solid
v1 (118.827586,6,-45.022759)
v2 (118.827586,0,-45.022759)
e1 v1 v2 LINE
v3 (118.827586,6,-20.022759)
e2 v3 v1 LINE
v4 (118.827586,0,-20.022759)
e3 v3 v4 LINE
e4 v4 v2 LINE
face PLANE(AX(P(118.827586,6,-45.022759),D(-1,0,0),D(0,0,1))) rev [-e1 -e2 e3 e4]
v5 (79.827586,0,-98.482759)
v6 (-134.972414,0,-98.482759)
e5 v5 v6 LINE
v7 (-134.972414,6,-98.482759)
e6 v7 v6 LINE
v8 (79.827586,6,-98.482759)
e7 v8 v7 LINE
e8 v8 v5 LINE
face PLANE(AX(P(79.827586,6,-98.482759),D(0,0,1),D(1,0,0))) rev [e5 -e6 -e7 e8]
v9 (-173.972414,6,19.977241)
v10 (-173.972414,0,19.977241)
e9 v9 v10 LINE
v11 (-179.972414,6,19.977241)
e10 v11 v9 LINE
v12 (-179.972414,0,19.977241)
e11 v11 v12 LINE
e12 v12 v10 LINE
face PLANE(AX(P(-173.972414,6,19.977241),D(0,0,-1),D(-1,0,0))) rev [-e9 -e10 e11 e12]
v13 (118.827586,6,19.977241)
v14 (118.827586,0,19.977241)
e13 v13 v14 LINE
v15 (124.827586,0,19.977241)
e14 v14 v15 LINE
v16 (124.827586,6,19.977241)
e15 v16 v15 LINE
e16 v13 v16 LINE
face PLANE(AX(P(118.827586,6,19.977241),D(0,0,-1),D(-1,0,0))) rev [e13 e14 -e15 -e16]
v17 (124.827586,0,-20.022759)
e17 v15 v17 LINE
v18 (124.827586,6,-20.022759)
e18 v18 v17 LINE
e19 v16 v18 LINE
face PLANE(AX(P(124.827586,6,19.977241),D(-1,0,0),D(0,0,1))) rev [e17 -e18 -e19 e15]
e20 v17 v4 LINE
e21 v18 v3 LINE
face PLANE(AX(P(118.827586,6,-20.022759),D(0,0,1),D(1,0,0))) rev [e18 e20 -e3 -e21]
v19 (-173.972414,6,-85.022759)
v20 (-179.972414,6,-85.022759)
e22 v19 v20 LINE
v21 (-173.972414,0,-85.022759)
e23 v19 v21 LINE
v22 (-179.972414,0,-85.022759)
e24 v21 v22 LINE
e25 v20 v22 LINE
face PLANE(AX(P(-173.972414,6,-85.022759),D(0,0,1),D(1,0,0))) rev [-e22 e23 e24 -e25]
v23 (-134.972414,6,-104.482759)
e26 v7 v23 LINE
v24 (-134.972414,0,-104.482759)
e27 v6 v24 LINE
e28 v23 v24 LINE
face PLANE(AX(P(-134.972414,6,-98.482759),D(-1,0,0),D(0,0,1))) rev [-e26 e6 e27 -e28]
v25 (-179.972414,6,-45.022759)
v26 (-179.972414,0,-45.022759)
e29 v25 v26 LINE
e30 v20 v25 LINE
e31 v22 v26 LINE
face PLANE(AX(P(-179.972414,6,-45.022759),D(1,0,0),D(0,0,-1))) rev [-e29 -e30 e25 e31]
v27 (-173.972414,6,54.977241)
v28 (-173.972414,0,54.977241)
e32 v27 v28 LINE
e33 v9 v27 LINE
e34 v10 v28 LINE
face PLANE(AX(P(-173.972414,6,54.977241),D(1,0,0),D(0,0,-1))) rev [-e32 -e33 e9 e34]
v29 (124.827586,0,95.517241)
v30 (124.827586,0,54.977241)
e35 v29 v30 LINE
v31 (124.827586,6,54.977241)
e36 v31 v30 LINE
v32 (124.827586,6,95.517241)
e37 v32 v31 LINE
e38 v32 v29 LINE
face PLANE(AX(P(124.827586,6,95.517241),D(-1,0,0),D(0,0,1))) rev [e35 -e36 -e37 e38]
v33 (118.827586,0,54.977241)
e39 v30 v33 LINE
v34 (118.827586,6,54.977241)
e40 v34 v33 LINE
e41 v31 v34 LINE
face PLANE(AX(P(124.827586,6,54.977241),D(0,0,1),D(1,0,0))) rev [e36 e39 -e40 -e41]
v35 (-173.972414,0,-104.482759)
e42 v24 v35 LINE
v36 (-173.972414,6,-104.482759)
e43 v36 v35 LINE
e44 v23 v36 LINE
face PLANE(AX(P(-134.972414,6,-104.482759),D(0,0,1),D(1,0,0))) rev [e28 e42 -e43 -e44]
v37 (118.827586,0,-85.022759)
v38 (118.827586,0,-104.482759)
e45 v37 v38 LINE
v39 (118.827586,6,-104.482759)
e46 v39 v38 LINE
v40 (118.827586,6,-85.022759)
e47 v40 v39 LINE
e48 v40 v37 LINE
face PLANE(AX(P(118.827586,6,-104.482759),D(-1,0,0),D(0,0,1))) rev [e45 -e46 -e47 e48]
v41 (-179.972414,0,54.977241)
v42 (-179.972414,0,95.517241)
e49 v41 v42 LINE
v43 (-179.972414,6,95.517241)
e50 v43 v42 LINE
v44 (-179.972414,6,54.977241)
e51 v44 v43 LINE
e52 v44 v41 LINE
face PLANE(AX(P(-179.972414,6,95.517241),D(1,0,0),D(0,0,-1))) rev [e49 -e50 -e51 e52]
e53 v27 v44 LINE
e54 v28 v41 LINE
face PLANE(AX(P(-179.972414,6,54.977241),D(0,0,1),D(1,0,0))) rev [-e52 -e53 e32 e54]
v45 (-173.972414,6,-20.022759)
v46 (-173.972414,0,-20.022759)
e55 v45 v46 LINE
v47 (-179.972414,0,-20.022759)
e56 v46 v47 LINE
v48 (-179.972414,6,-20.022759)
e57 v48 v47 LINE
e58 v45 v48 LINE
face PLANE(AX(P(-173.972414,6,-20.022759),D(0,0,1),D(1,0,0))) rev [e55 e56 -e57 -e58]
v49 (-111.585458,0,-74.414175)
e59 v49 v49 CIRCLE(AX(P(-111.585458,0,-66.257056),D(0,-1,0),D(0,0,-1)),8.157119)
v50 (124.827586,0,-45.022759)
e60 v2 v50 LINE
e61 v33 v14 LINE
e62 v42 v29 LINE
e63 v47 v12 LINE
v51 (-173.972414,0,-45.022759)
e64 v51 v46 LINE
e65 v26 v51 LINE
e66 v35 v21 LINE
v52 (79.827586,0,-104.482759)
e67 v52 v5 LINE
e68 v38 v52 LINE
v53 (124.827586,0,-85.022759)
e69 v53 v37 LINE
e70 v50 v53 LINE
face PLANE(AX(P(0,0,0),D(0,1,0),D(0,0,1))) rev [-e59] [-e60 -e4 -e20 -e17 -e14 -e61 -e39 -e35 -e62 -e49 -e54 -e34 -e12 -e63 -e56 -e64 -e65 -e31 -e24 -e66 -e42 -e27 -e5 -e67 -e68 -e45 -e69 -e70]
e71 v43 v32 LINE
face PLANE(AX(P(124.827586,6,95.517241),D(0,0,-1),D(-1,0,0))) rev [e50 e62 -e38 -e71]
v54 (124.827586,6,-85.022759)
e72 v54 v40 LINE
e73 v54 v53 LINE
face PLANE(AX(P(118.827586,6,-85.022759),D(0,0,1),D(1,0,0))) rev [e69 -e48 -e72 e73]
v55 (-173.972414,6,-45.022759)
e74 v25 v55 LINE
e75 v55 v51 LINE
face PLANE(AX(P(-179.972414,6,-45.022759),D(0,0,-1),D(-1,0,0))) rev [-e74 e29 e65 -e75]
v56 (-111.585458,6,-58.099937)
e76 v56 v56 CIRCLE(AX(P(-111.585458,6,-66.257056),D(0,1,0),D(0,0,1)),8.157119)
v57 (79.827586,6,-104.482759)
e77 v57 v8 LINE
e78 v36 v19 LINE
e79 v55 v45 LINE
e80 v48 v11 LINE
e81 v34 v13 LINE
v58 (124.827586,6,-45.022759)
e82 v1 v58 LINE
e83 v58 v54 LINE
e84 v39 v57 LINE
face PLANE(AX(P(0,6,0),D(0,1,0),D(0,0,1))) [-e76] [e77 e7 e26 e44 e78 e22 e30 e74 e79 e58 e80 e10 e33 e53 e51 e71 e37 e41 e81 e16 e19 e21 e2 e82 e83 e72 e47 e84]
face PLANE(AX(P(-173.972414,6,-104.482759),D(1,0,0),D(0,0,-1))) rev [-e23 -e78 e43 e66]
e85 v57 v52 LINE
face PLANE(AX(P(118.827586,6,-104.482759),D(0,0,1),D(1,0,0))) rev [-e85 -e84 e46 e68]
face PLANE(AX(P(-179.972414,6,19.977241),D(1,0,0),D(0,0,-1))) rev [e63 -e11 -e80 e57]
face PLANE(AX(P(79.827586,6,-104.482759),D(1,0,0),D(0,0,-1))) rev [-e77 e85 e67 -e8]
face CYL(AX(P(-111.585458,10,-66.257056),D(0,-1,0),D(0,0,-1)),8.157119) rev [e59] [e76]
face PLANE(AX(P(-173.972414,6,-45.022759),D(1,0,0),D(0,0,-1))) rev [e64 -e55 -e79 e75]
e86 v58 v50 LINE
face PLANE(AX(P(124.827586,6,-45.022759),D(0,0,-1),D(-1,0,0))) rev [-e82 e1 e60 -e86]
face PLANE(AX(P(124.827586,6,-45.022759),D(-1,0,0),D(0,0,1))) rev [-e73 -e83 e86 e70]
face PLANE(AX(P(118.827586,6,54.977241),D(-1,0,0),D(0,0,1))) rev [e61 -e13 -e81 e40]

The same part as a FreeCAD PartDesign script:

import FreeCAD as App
import Part
import Sketcher

V = App.Vector
Q = App.Units.Quantity

doc = App.newDocument("Part")
body = doc.addObject("PartDesign::Body", "Body")

sketch1 = body.newObject("Sketcher::SketchObject", "Sketch")
sketch1.AttachmentSupport = (doc.getObject("XZ_Plane"), [""])
sketch1.MapMode = "FlatFace"
sketch1.addGeometry([
    Part.LineSegment(V(80, -104, 0), V(80, -98, 0)),
    Part.LineSegment(V(80, -98, 0), V(-135, -98, 0)),
    Part.LineSegment(V(-135, -98, 0), V(-135, -104, 0)),
    Part.LineSegment(V(-135, -104, 0), V(-174, -104, 0)),
    Part.LineSegment(V(-174, -104, 0), V(-174, -85, 0)),
    Part.LineSegment(V(-174, -85, 0), V(-180, -85, 0)),
    Part.LineSegment(V(-180, -85, 0), V(-180, -45, 0)),
    Part.LineSegment(V(-180, -45, 0), V(-174, -45, 0)),
    Part.LineSegment(V(-174, -45, 0), V(-174, -20, 0)),
    Part.LineSegment(V(-174, -20, 0), V(-180, -20, 0)),
    Part.LineSegment(V(-180, -20, 0), V(-180, 20, 0)),
    Part.LineSegment(V(-180, 20, 0), V(-174, 20, 0)),
    Part.LineSegment(V(-174, 20, 0), V(-174, 55, 0)),
    Part.LineSegment(V(-174, 55, 0), V(-180, 55, 0)),
    Part.LineSegment(V(-180, 55, 0), V(-180, 96, 0)),
    Part.LineSegment(V(-180, 96, 0), V(125, 96, 0)),
    Part.LineSegment(V(125, 96, 0), V(125, 55, 0)),
    Part.LineSegment(V(125, 55, 0), V(119, 55, 0)),
    Part.LineSegment(V(119, 55, 0), V(119, 20, 0)),
    Part.LineSegment(V(119, 20, 0), V(125, 20, 0)),
    Part.LineSegment(V(125, 20, 0), V(125, -20, 0)),
    Part.LineSegment(V(125, -20, 0), V(119, -20, 0)),
    Part.LineSegment(V(119, -20, 0), V(119, -45, 0)),
    Part.LineSegment(V(119, -45, 0), V(125, -45, 0)),
    Part.LineSegment(V(125, -45, 0), V(125, -85, 0)),
    Part.LineSegment(V(125, -85, 0), V(119, -85, 0)),
    Part.LineSegment(V(119, -85, 0), V(119, -104, 0)),
    Part.LineSegment(V(119, -104, 0), V(80, -104, 0)),
], False)
sketch1.addConstraint([
    Sketcher.Constraint("Coincident", 0, 2, 1, 1),
    Sketcher.Constraint("Coincident", 1, 2, 2, 1),
    Sketcher.Constraint("Coincident", 2, 2, 3, 1),
    Sketcher.Constraint("Coincident", 3, 2, 4, 1),
    Sketcher.Constraint("Coincident", 4, 2, 5, 1),
    Sketcher.Constraint("Coincident", 5, 2, 6, 1),
    Sketcher.Constraint("Coincident", 6, 2, 7, 1),
    Sketcher.Constraint("Coincident", 7, 2, 8, 1),
    Sketcher.Constraint("Coincident", 8, 2, 9, 1),
    Sketcher.Constraint("Coincident", 9, 2, 10, 1),
    Sketcher.Constraint("Coincident", 10, 2, 11, 1),
    Sketcher.Constraint("Coincident", 11, 2, 12, 1),
    Sketcher.Constraint("Coincident", 12, 2, 13, 1),
    Sketcher.Constraint("Coincident", 13, 2, 14, 1),
    Sketcher.Constraint("Coincident", 14, 2, 15, 1),
    Sketcher.Constraint("Coincident", 15, 2, 16, 1),
    Sketcher.Constraint("Coincident", 16, 2, 17, 1),
    Sketcher.Constraint("Coincident", 17, 2, 18, 1),
    Sketcher.Constraint("Coincident", 18, 2, 19, 1),
    Sketcher.Constraint("Coincident", 19, 2, 20, 1),
    Sketcher.Constraint("Coincident", 20, 2, 21, 1),
    Sketcher.Constraint("Coincident", 21, 2, 22, 1),
    Sketcher.Constraint("Coincident", 22, 2, 23, 1),
    Sketcher.Constraint("Coincident", 23, 2, 24, 1),
    Sketcher.Constraint("Coincident", 24, 2, 25, 1),
    Sketcher.Constraint("Coincident", 25, 2, 26, 1),
    Sketcher.Constraint("Coincident", 26, 2, 27, 1),
    Sketcher.Constraint("Coincident", 27, 2, 0, 1),
    Sketcher.Constraint("Vertical", 0),
    Sketcher.Constraint("Horizontal", 1),
    Sketcher.Constraint("Vertical", 2),
    Sketcher.Constraint("Horizontal", 3),
    Sketcher.Constraint("Vertical", 4),
    Sketcher.Constraint("Horizontal", 5),
    Sketcher.Constraint("Vertical", 6),
    Sketcher.Constraint("Horizontal", 7),
    Sketcher.Constraint("Vertical", 8),
    Sketcher.Constraint("Horizontal", 9),
    Sketcher.Constraint("Vertical", 10),
    Sketcher.Constraint("Horizontal", 11),
    Sketcher.Constraint("Vertical", 12),
    Sketcher.Constraint("Horizontal", 13),
    Sketcher.Constraint("Vertical", 14),
    Sketcher.Constraint("Horizontal", 15),
    Sketcher.Constraint("Vertical", 16),
    Sketcher.Constraint("Horizontal", 17),
    Sketcher.Constraint("Vertical", 18),
    Sketcher.Constraint("Horizontal", 19),
    Sketcher.Constraint("Vertical", 20),
    Sketcher.Constraint("Horizontal", 21),
    Sketcher.Constraint("Vertical", 22),
    Sketcher.Constraint("Horizontal", 23),
    Sketcher.Constraint("Vertical", 24),
    Sketcher.Constraint("Horizontal", 25),
    Sketcher.Constraint("Vertical", 26),
    Sketcher.Constraint("Horizontal", 27),
    Sketcher.Constraint("Horizontal", 13, 2, 16, 2),
    Sketcher.Constraint("Horizontal", 11, 2, 18, 2),
    Sketcher.Constraint("Horizontal", 9, 2, 20, 2),
    Sketcher.Constraint("Horizontal", 7, 2, 22, 2),
    Sketcher.Constraint("Horizontal", 5, 2, 24, 2),
    Sketcher.Constraint("Horizontal", 3, 2, 26, 2),
    Sketcher.Constraint("Vertical", 4, 2, 7, 2),
    Sketcher.Constraint("Vertical", 6, 2, 9, 2),
    Sketcher.Constraint("Vertical", 8, 2, 11, 2),
    Sketcher.Constraint("Vertical", 10, 2, 13, 2),
    Sketcher.Constraint("Vertical", 16, 2, 19, 2),
    Sketcher.Constraint("Vertical", 18, 2, 21, 2),
    Sketcher.Constraint("Vertical", 20, 2, 23, 2),
    Sketcher.Constraint("Vertical", 22, 2, 25, 2),
    Sketcher.Constraint("Equal", 13, 17),
    Sketcher.Constraint("Equal", 3, 27),
    Sketcher.Constraint("Equal", 25, 0),
    Sketcher.Constraint("Equal", 6, 10),
    Sketcher.Constraint("DistanceX", 3, 2, 3, 1, Q("39 mm")),
    Sketcher.Constraint("DistanceX", 5, 2, 5, 1, Q("6 mm")),
    Sketcher.Constraint("DistanceY", 6, 1, 6, 2, Q("40 mm")),
    Sketcher.Constraint("DistanceY", 8, 1, 8, 2, Q("25 mm")),
    Sketcher.Constraint("DistanceY", 12, 1, 12, 2, Q("35 mm")),
    Sketcher.Constraint("DistanceX", 1, 2, 1, 1, Q("214.8 mm")),
    Sketcher.Constraint("DistanceY", 0, 2, 15, 2, Q("194 mm")),
    Sketcher.Constraint("DistanceY", 4, 1, 4, 2, Q("19.46 mm")),
    Sketcher.Constraint("DistanceY", 0, 2, -1, 1, Q("98.482759 mm")),
    Sketcher.Constraint("DistanceX", -1, 1, 0, 2, Q("79.827586 mm")),
])
pad1 = body.newObject("PartDesign::Pad", "Pad")
pad1.Profile = sketch1
pad1.Length = 6
pad1.Reversed = True

sketch2 = body.newObject("Sketcher::SketchObject", "Sketch001")
sketch2.AttachmentSupport = (doc.getObject("XZ_Plane"), [""])
sketch2.MapMode = "FlatFace"
sketch2.addGeometry(Part.Circle(V(-112, -66, 0), V(0, 0, 1), 8), False)
sketch2.addConstraint([
    Sketcher.Constraint("Diameter", 0, Q("16.314237 mm")),
    Sketcher.Constraint("DistanceX", 0, 3, -1, 1, Q("111.585458 mm")),
    Sketcher.Constraint("DistanceY", 0, 3, -1, 1, Q("66.257056 mm")),
])
pocket1 = body.newObject("PartDesign::Pocket", "Pocket")
pocket1.Profile = sketch2
pocket1.Length = 10

doc.recompute()
